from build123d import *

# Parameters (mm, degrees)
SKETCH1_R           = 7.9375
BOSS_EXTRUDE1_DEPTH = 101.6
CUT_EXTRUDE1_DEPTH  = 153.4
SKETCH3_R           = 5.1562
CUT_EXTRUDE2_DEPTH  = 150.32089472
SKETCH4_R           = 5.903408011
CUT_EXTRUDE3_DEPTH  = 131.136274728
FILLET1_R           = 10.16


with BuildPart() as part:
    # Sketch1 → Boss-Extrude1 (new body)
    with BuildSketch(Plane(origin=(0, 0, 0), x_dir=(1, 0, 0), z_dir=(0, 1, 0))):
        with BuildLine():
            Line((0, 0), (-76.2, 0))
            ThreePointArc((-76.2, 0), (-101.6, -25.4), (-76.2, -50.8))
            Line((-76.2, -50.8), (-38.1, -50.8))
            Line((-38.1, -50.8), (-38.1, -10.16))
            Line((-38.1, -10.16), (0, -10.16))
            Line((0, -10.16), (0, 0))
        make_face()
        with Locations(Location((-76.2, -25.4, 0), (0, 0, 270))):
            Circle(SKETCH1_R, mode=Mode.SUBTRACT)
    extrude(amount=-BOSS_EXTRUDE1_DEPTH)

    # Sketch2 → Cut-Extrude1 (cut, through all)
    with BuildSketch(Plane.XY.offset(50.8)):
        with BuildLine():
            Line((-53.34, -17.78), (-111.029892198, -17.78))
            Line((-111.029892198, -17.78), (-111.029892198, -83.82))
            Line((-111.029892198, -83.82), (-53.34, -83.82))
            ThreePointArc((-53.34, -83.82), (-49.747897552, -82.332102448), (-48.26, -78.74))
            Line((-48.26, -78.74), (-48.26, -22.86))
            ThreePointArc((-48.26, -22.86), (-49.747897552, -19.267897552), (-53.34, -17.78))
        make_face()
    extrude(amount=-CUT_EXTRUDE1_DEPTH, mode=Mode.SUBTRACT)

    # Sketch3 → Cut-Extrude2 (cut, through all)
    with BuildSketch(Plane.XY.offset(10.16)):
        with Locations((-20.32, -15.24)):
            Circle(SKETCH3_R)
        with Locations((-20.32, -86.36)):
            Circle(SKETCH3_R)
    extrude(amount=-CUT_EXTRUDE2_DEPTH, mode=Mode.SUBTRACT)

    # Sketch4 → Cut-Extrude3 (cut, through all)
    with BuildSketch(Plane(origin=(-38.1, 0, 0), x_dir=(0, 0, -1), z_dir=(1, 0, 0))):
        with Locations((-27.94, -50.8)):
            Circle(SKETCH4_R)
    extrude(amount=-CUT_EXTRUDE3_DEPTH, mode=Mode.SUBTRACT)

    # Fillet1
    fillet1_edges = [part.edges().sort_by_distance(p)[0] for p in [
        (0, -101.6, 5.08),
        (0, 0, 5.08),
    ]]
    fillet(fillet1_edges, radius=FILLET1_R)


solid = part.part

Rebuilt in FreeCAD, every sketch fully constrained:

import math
import FreeCAD as App
import Part
import Sketcher
Q = App.Units.Quantity


def edges_at(feature, points):
    """Names of the edges that pass closest to the given points."""
    edges = feature.Shape.Edges
    near = lambda p: min(range(len(edges)), key=lambda i: edges[i].distToShape(Part.Vertex(*p))[0])
    return sorted({f"Edge{near(p) + 1}" for p in points})

doc = App.newDocument("Part")
params = doc.addObject("Spreadsheet::Sheet", "Params")
for row, (alias, value) in enumerate([
    ("sketch1_radius", "1 in"),
    ("sketch1_width", "3 in"),
    ("sketch1_diameter", "0.625 in"),
    ("sketch1_height", "1.6 in"),
    ("pad1_length", "4 in"),
    ("sketch2_radius", "0.2 in"),
    ("sketch2_height", "2.6 in"),
    ("sketch3_diameter", "0.406 in"),
    ("fillet_radius", "0.4 in"),
], start=1):
    params.set(f"A{row}", alias)
    params.set(f"B{row}", "=" + value)
    params.setAlias(f"B{row}", alias)

body = doc.addObject("PartDesign::Body", "Body")

# Sketch on XZ plane
sketch1 = doc.addObject("Sketcher::SketchObject", "Sketch")
body.addObject(sketch1)
sketch1.AttachmentSupport = (doc.XZ_Plane, [""])
sketch1.MapMode = "FlatFace"
sketch1.addGeometry([
    Part.LineSegment(App.Vector(0, 0, 0), App.Vector(-76, 0, 0)),  # 0
    Part.ArcOfCircle(Part.Circle(App.Vector(-76, 25, 0), App.Vector(0, 0, 1), 25), math.radians(90), math.radians(270)),  # 1
    Part.LineSegment(App.Vector(-76, 51, 0), App.Vector(-38, 51, 0)),  # 2
    Part.LineSegment(App.Vector(-38, 51, 0), App.Vector(-38, 10, 0)),  # 3
    Part.LineSegment(App.Vector(-38, 10, 0), App.Vector(0, 10, 0)),  # 4
    Part.LineSegment(App.Vector(0, 10, 0), App.Vector(0, 0, 0)),  # 5
    Part.Circle(App.Vector(-76, 25, 0), App.Vector(0, 0, 1), 8),  # 6
], False)
sketch1.addConstraint([
    Sketcher.Constraint("Tangent", 0, 2, 1, 2),
    Sketcher.Constraint("Tangent", 1, 1, 2, 1),
    Sketcher.Constraint("Coincident", 2, 2, 3, 1),
    Sketcher.Constraint("Coincident", 3, 2, 4, 1),
    Sketcher.Constraint("Coincident", 4, 2, 5, 1),
    Sketcher.Constraint("Coincident", 5, 2, 0, 1),
    Sketcher.Constraint("Horizontal", 0),
    Sketcher.Constraint("Horizontal", 2),
    Sketcher.Constraint("Vertical", 3),
    Sketcher.Constraint("Horizontal", 4),
    Sketcher.Constraint("Vertical", 5),
    Sketcher.Constraint("Coincident", 5, 2, -1, 1),
    Sketcher.Constraint("Coincident", 6, 3, 1, 3),
    Sketcher.Constraint("Equal", 2, 4),
    Sketcher.Constraint("Radius", 1, Q("1 in")),
    Sketcher.Constraint("DistanceX", 0, 2, 0, 1, Q("3 in")),
    Sketcher.Constraint("Diameter", 6, Q("0.625 in")),
    Sketcher.Constraint("DistanceY", 3, 2, 3, 1, Q("1.6 in")),
])
sketch1.setExpression("Constraints[14]", "Params.sketch1_radius")
sketch1.setExpression("Constraints[15]", "Params.sketch1_width")
sketch1.setExpression("Constraints[16]", "Params.sketch1_diameter")
sketch1.setExpression("Constraints[17]", "Params.sketch1_height")
pad1 = doc.addObject("PartDesign::Pad", "Pad")
body.addObject(pad1)
pad1.Profile = sketch1
pad1.setExpression("Length", "Params.pad1_length")

# Sketch on XY plane
sketch2 = doc.addObject("Sketcher::SketchObject", "Sketch001")
body.addObject(sketch2)
sketch2.AttachmentSupport = (doc.XY_Plane, [""])
sketch2.MapMode = "FlatFace"
sketch2.AttachmentOffset = App.Placement(App.Vector(0, 0, 2 * 25.4), App.Rotation())
sketch2.addGeometry([
    Part.LineSegment(App.Vector(-53, -18, 0), App.Vector(-111, -18, 0)),  # 0
    Part.LineSegment(App.Vector(-111, -18, 0), App.Vector(-111, -84, 0)),  # 1
    Part.LineSegment(App.Vector(-111, -84, 0), App.Vector(-53, -84, 0)),  # 2
    Part.ArcOfCircle(Part.Circle(App.Vector(-53, -79, 0), App.Vector(0, 0, 1), 5), math.radians(-90), math.radians(0)),  # 3
    Part.LineSegment(App.Vector(-48, -79, 0), App.Vector(-48, -23, 0)),  # 4
    Part.ArcOfCircle(Part.Circle(App.Vector(-53, -23, 0), App.Vector(0, 0, 1), 5), math.radians(0), math.radians(90)),  # 5
], False)
sketch2.addConstraint([
    Sketcher.Constraint("Coincident", 0, 2, 1, 1),
    Sketcher.Constraint("Coincident", 1, 2, 2, 1),
    Sketcher.Constraint("Tangent", 2, 2, 3, 1),
    Sketcher.Constraint("Tangent", 3, 2, 4, 1),
    Sketcher.Constraint("Tangent", 4, 2, 5, 1),
    Sketcher.Constraint("Tangent", 5, 2, 0, 1),
    Sketcher.Constraint("Horizontal", 0),
    Sketcher.Constraint("Vertical", 1),
    Sketcher.Constraint("Horizontal", 2),
    Sketcher.Constraint("Vertical", 4),
    Sketcher.Constraint("Equal", 3, 5),
    Sketcher.Constraint("Radius", 3, Q("0.2 in")),
    Sketcher.Constraint("DistanceY", 1, 2, 1, 1, Q("2.6 in")),
    Sketcher.Constraint("DistanceX", 3, 3, -1, 1, Q("2.1 in")),
    Sketcher.Constraint("DistanceY", 3, 3, -1, 1, Q("3.1 in")),
    Sketcher.Constraint("DistanceX", 0, 2, 0, 1, Q("57.689892 mm")),
])
sketch2.setExpression("Constraints[11]", "Params.sketch2_radius")
sketch2.setExpression("Constraints[12]", "Params.sketch2_height")
pocket1 = doc.addObject("PartDesign::Pocket", "Pocket")
body.addObject(pocket1)
pocket1.Profile = sketch2
pocket1.Type = "ThroughAll"

# Sketch on XY plane
sketch3 = doc.addObject("Sketcher::SketchObject", "Sketch002")
body.addObject(sketch3)
sketch3.AttachmentSupport = (doc.XY_Plane, [""])
sketch3.MapMode = "FlatFace"
sketch3.AttachmentOffset = App.Placement(App.Vector(0, 0, 0.4 * 25.4), App.Rotation())
sketch3.addGeometry([
    Part.Circle(App.Vector(-20, -15, 0), App.Vector(0, 0, 1), 5),
    Part.Circle(App.Vector(-20, -86, 0), App.Vector(0, 0, 1), 5),
], False)
sketch3.addConstraint([
    Sketcher.Constraint("Equal", 0, 1),
    Sketcher.Constraint("Vertical", 0, 3, 1, 3),
    Sketcher.Constraint("Diameter", 0, Q("0.406 in")),
    Sketcher.Constraint("DistanceX", 0, 3, -1, 1, Q("0.8 in")),
    Sketcher.Constraint("DistanceY", 0, 3, -1, 1, Q("0.6 in")),
    Sketcher.Constraint("DistanceY", 1, 3, -1, 1, Q("3.4 in")),
])
sketch3.setExpression("Constraints[2]", "Params.sketch3_diameter")
pocket2 = doc.addObject("PartDesign::Pocket", "Pocket001")
body.addObject(pocket2)
pocket2.Profile = sketch3
pocket2.Type = "ThroughAll"

# Sketch on YZ plane
sketch4 = doc.addObject("Sketcher::SketchObject", "Sketch003")
body.addObject(sketch4)
sketch4.AttachmentSupport = (doc.YZ_Plane, [""])
sketch4.MapMode = "FlatFace"
sketch4.AttachmentOffset = App.Placement(App.Vector(0, 0, -1.5 * 25.4), App.Rotation())
sketch4.addGeometry(Part.Circle(App.Vector(-51, 28, 0), App.Vector(0, 0, 1), 6), False)
sketch4.addConstraint([
    Sketcher.Constraint("DistanceX", 0, 3, -1, 1, Q("2 in")),
    Sketcher.Constraint("DistanceY", -1, 1, 0, 3, Q("1.1 in")),
    Sketcher.Constraint("Diameter", 0, Q("11.806816 mm")),
])
pocket3 = doc.addObject("PartDesign::Pocket", "Pocket002")
body.addObject(pocket3)
pocket3.Profile = sketch4
pocket3.Type = "ThroughAll"
doc.recompute()

fillet = doc.addObject("PartDesign::Fillet", "Fillet")
body.addObject(fillet)
fillet.Base = (pocket3, edges_at(pocket3, [(0, -101.6, 5.08), (0, 0, 5.08)]))
fillet.setExpression("Radius", "Params.fillet_radius")

doc.recompute()
